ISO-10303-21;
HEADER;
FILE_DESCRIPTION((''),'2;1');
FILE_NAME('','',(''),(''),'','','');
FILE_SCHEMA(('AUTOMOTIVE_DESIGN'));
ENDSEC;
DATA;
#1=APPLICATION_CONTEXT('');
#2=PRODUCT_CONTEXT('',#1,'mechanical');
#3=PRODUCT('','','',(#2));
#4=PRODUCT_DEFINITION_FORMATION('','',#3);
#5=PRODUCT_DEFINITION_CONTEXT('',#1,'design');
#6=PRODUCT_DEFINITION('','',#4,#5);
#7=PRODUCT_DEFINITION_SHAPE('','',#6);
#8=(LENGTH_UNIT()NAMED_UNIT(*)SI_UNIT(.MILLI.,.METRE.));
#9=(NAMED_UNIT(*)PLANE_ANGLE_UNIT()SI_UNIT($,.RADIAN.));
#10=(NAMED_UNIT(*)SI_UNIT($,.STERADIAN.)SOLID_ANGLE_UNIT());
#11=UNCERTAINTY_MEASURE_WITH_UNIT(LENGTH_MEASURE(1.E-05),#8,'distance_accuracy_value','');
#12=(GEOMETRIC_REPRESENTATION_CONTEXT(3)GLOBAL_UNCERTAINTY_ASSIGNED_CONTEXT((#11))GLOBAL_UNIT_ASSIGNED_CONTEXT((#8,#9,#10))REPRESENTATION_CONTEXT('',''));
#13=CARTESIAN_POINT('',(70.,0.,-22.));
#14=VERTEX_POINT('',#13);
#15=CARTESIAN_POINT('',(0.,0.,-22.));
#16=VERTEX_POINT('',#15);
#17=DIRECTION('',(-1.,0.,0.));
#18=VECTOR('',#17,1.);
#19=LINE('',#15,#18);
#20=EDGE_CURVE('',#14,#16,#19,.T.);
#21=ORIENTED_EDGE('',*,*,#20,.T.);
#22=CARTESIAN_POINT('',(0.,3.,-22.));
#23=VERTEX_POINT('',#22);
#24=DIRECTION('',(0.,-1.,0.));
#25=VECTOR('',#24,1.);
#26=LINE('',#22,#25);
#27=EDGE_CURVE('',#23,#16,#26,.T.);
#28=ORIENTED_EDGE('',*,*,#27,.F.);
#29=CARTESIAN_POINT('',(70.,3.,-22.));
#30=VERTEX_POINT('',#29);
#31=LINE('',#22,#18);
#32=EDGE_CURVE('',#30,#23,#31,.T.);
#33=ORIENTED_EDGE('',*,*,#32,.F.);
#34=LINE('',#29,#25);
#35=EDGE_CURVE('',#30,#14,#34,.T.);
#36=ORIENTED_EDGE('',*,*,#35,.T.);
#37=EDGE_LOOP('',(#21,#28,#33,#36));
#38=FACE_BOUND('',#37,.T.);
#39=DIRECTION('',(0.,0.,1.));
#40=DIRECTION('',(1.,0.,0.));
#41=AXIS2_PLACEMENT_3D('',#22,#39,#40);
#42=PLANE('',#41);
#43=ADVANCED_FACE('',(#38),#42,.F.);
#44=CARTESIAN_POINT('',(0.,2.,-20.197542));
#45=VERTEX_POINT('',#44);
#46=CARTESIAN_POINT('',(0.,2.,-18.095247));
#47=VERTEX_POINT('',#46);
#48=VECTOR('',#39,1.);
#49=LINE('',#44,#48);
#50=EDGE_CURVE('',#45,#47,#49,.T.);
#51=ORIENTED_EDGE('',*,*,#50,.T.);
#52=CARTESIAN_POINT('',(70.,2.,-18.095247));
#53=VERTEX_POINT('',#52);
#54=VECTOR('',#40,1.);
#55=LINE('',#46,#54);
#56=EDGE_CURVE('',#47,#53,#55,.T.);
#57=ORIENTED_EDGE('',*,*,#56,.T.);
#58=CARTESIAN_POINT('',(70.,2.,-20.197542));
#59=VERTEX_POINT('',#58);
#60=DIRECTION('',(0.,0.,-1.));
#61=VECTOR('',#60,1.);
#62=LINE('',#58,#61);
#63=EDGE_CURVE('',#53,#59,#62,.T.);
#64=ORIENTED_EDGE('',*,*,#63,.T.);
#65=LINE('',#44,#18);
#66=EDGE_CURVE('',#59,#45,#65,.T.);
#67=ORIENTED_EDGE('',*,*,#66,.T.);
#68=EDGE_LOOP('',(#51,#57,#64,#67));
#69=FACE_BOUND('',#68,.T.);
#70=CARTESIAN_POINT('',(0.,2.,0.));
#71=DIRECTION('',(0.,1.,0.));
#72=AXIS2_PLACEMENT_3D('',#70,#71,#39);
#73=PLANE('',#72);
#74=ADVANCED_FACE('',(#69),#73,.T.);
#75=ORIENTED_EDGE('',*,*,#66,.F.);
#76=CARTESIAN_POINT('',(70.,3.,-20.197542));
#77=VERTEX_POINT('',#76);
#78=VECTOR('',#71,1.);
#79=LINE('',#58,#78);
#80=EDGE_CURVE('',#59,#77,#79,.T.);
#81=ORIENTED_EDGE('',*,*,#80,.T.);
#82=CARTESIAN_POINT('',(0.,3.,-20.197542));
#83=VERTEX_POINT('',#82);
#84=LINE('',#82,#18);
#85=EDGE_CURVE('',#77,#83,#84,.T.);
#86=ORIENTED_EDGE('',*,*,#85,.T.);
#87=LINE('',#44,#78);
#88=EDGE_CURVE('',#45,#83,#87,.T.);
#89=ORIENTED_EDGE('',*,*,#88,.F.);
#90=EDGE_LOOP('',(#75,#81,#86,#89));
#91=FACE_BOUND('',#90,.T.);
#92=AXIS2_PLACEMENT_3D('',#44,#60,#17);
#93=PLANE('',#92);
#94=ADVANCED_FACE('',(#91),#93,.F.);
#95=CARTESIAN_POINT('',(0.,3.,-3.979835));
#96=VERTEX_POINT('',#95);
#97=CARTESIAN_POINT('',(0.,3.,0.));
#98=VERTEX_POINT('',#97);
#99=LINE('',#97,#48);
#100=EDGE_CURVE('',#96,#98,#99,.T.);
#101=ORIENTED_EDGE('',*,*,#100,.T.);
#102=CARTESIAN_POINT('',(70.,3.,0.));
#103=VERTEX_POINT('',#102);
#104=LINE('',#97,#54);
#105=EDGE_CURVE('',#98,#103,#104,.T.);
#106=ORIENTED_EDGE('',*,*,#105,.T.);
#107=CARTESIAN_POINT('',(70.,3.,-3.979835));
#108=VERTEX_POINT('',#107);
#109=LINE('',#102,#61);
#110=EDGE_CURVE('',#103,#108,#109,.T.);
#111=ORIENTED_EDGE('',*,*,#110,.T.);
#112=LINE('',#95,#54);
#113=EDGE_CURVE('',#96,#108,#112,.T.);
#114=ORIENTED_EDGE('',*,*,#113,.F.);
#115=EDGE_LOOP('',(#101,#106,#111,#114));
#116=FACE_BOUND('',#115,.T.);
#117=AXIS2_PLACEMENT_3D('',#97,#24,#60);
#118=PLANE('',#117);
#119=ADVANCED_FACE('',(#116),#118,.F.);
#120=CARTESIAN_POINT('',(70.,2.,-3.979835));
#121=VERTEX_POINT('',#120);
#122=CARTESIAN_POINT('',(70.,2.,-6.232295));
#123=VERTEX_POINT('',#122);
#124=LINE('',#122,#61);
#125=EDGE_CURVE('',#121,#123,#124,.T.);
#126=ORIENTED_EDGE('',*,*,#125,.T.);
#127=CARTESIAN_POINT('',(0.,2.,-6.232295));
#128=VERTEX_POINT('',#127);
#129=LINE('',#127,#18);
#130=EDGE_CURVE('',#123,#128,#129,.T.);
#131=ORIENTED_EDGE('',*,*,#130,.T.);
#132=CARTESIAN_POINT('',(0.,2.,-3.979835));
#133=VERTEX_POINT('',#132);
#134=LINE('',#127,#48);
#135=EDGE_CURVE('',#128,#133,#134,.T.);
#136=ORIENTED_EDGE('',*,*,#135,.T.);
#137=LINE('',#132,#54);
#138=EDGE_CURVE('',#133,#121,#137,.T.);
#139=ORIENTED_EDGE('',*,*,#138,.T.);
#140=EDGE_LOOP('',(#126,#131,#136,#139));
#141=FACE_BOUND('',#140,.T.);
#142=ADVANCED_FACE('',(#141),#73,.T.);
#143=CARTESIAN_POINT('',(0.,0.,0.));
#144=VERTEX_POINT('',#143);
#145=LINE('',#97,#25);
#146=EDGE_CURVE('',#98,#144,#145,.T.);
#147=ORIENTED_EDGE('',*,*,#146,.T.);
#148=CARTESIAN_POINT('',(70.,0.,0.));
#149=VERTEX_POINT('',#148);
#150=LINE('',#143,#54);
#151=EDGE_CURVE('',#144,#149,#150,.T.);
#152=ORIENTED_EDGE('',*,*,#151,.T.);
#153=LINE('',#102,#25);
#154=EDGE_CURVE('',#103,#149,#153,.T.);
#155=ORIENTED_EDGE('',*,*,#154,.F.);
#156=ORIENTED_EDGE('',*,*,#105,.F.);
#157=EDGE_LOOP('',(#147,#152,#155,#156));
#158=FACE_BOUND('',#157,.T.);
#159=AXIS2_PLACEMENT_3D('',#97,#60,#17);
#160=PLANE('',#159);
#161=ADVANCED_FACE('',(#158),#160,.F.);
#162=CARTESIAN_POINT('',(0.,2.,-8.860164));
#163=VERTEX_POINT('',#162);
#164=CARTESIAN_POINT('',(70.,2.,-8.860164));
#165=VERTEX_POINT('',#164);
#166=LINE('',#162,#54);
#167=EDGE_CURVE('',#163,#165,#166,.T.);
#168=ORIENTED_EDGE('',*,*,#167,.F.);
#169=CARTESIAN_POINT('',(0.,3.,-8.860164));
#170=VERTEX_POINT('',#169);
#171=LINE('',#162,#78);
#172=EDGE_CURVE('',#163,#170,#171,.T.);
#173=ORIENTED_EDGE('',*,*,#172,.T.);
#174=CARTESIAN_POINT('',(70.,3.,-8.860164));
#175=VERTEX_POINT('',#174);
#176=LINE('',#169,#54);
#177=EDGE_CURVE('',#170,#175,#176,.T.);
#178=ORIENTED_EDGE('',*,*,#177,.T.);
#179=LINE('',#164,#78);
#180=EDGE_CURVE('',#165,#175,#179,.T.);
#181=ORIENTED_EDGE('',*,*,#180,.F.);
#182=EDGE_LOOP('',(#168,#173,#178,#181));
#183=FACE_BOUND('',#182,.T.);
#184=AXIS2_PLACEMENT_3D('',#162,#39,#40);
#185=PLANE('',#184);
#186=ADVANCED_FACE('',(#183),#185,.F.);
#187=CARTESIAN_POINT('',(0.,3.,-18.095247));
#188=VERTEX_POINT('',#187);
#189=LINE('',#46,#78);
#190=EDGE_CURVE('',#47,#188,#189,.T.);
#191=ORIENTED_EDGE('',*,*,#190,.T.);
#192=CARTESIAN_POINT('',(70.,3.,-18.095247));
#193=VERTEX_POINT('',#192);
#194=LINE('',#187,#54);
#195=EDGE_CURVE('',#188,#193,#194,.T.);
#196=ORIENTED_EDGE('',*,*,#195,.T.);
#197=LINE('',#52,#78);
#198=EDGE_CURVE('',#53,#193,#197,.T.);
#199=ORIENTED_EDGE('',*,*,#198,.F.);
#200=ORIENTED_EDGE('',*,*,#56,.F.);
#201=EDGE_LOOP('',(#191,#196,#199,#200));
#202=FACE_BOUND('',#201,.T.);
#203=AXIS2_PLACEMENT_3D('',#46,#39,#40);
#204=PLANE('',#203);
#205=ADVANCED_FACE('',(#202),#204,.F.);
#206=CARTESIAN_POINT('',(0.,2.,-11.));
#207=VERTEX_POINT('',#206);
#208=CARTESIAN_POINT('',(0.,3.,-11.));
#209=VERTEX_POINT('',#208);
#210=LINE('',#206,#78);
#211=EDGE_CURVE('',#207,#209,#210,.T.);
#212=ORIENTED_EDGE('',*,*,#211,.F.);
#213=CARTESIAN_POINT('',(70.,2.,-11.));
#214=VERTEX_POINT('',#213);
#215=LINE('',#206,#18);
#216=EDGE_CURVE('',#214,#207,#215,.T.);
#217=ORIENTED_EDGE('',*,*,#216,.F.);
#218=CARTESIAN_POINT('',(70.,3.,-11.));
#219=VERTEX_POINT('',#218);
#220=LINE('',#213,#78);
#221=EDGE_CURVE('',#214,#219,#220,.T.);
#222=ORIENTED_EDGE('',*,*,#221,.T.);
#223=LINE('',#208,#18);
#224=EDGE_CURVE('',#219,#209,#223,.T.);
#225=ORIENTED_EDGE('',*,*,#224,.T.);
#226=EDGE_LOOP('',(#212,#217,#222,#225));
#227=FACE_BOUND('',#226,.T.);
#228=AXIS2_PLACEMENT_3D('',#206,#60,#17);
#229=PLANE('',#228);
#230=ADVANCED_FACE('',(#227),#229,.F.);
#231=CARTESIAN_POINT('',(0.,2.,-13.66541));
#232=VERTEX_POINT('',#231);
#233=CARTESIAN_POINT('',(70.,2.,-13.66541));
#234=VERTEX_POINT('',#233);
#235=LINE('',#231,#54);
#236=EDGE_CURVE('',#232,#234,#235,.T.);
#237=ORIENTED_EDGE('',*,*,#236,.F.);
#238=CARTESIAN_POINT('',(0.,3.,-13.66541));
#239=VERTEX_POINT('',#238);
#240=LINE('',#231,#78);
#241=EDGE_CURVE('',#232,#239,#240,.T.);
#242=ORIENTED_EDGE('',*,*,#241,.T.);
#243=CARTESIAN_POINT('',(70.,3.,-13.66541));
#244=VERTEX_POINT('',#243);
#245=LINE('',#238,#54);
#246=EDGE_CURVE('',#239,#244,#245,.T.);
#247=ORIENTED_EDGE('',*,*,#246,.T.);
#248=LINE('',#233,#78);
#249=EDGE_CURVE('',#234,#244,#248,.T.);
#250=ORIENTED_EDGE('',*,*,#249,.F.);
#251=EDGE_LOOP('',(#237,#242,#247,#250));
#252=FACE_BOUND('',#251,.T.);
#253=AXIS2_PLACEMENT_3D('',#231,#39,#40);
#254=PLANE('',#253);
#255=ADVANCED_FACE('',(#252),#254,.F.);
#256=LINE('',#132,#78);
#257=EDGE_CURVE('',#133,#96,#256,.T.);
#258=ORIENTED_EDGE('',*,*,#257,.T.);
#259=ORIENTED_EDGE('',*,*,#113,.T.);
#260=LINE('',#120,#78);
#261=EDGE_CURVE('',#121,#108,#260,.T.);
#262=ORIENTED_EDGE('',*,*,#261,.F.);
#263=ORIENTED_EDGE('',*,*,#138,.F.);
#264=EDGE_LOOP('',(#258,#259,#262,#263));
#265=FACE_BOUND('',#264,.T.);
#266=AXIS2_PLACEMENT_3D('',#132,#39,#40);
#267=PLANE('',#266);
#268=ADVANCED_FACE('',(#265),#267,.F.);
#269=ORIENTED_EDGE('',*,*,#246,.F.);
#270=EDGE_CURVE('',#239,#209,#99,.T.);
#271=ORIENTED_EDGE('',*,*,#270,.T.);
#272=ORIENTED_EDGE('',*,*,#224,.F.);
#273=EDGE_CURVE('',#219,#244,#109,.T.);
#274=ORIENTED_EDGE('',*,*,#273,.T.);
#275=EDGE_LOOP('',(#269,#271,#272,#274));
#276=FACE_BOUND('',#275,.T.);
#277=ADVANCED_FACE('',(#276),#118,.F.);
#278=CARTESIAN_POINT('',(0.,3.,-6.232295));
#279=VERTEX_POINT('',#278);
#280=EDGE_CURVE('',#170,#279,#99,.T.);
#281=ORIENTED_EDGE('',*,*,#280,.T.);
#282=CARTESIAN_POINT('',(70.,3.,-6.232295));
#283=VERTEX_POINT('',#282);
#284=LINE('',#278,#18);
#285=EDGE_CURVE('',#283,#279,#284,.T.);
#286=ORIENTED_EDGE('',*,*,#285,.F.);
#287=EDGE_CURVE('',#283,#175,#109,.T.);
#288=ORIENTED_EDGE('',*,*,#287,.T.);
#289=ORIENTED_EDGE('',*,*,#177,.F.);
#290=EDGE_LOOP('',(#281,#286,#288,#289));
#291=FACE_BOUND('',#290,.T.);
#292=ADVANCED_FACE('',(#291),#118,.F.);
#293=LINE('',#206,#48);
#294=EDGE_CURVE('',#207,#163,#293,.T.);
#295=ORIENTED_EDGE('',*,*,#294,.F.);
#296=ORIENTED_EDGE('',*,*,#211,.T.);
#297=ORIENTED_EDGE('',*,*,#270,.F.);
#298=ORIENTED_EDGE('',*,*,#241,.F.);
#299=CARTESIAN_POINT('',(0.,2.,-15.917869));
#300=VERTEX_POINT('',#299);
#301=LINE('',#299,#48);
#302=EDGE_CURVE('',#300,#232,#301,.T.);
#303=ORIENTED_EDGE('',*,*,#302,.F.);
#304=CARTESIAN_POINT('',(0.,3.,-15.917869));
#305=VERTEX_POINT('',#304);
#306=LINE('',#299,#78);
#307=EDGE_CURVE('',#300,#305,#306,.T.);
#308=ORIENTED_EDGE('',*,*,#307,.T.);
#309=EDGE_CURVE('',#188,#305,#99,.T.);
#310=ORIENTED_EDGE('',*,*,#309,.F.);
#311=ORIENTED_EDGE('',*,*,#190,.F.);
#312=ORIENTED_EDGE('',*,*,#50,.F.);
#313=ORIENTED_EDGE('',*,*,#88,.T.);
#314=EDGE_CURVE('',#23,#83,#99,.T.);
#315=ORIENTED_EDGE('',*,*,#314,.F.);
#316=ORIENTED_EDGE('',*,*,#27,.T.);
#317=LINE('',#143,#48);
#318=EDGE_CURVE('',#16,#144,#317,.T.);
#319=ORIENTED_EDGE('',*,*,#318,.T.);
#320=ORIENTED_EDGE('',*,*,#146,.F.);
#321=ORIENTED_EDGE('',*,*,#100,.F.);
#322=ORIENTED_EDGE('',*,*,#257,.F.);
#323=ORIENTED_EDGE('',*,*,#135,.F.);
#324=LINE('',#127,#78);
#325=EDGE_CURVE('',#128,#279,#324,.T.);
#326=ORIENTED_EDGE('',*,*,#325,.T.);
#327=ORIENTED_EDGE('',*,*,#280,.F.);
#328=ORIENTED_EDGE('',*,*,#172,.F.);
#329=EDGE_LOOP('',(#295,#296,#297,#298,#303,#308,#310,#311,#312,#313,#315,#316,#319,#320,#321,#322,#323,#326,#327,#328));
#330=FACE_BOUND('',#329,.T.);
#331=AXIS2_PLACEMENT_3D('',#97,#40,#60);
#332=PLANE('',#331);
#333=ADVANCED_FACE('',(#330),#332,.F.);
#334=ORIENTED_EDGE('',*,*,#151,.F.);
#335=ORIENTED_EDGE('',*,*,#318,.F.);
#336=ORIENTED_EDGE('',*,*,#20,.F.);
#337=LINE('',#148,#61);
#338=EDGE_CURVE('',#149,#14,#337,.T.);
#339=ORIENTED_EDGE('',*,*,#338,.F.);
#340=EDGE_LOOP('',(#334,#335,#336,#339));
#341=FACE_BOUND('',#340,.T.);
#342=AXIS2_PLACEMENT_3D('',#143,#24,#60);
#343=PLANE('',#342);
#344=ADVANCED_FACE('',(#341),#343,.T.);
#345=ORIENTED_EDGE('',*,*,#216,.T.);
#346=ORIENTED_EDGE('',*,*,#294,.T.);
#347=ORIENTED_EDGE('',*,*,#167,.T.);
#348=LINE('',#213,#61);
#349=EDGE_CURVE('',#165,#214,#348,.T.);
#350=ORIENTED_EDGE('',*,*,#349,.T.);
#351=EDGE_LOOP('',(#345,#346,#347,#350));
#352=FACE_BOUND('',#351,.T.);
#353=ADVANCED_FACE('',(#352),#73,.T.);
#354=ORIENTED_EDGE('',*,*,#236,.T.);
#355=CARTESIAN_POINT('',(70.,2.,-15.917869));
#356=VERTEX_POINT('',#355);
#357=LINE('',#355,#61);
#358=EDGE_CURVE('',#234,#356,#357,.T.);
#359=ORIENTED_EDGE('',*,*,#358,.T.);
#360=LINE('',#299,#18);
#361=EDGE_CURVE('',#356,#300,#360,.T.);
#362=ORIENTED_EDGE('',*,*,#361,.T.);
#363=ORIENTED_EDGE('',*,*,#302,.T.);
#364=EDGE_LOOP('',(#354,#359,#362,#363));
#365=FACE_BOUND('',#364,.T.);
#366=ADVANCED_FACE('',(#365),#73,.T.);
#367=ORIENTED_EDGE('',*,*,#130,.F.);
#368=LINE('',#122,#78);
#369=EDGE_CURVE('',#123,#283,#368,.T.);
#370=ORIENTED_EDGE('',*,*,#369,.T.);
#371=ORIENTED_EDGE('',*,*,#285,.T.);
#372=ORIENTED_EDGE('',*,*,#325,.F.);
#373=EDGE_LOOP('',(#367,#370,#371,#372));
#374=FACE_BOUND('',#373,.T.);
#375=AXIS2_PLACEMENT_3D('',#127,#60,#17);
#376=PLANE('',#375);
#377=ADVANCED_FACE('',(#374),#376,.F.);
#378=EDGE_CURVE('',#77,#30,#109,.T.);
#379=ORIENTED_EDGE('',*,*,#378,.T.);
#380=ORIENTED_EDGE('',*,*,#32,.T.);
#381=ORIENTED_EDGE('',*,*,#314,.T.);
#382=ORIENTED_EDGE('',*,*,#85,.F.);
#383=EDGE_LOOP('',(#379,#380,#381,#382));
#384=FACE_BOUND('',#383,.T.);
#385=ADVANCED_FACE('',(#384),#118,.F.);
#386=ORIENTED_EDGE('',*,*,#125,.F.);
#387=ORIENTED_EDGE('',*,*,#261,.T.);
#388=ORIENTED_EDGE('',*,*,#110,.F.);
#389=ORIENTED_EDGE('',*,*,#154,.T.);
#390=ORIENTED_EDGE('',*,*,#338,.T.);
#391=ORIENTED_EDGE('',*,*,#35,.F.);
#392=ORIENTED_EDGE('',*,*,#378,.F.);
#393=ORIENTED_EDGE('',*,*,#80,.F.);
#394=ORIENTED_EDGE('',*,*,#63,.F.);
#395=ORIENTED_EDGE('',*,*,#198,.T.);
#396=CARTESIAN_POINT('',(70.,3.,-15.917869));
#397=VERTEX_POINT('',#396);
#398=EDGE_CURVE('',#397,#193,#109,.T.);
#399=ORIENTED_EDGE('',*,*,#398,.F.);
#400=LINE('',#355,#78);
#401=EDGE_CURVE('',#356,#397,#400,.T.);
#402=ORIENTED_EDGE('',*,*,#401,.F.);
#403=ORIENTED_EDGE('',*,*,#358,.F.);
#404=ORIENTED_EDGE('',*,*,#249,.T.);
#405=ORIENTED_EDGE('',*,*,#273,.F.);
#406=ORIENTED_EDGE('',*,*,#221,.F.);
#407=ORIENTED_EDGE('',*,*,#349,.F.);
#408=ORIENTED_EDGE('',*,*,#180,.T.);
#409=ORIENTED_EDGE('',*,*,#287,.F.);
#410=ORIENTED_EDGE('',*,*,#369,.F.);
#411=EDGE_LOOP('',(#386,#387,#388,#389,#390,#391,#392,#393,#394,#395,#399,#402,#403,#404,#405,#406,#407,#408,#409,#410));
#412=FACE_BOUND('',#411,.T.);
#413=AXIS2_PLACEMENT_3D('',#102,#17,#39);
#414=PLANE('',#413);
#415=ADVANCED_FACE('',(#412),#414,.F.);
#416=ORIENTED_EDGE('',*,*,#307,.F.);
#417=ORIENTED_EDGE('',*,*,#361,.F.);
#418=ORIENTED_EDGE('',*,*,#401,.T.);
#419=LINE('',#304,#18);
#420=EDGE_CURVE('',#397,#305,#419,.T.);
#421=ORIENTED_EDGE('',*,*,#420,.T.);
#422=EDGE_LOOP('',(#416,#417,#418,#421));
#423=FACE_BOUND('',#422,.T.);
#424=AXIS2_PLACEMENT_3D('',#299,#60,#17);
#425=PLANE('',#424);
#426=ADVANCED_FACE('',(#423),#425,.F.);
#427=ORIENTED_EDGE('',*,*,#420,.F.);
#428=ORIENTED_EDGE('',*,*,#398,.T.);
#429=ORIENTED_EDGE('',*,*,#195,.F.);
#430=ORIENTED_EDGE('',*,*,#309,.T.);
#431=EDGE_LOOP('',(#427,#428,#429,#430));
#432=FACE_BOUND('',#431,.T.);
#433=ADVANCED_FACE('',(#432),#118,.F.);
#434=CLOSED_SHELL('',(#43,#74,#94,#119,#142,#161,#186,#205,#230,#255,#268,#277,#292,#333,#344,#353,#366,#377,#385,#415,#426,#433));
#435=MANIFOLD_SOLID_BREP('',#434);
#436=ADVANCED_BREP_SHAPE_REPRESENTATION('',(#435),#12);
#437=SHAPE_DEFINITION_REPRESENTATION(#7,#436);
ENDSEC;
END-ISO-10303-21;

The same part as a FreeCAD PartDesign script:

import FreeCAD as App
import Part
import Sketcher
from FreeCAD import Vector


def add_polygon(sketch, points):
    """Adds a closed chain of lines whose ends are joined by coincident constraints."""
    first, n = sketch.GeometryCount, len(points)
    for a, b in zip(points, points[1:] + points[:1]):
        sketch.addGeometry(Part.LineSegment(App.Vector(*a, 0), App.Vector(*b, 0)), False)
    for i in range(n):
        sketch.addConstraint(Sketcher.Constraint("Coincident", first + i, 2, first + (i + 1) % n, 1))

doc = App.newDocument("Part")
params = doc.addObject("Spreadsheet::Sheet", "Params")
for row, (alias, value) in enumerate([
    ("sketch1_width", "70 mm"),
    ("sketch1_height", "22 mm"),
    ("pad1_length", "3 mm"),
    ("sketch2_width", "70 mm"),
    ("pocket1_length", "1 mm"),
], start=1):
    params.set(f"A{row}", alias)
    params.set(f"B{row}", "=" + value)
    params.setAlias(f"B{row}", alias)

body = doc.addObject("PartDesign::Body", "Body")

sketch1 = body.newObject("Sketcher::SketchObject", "Sketch")
sketch1.AttachmentSupport = (doc.getObject("XZ_Plane"), [""])
sketch1.MapMode = "FlatFace"
add_polygon(sketch1, [(0, -22), (0, 0), (70, 0), (70, -22)])
sketch1.addConstraint(Sketcher.Constraint("Vertical", 0))
sketch1.addConstraint(Sketcher.Constraint("Horizontal", 1))
sketch1.addConstraint(Sketcher.Constraint("Vertical", 2))
sketch1.addConstraint(Sketcher.Constraint("Horizontal", 3))
sketch1.addConstraint(Sketcher.Constraint("Coincident", 0, 2, -1, 1))
sketch1.addConstraint(Sketcher.Constraint("DistanceX", 1, 1, 1, 2, 70.0))
sketch1.addConstraint(Sketcher.Constraint("DistanceY", 0, 1, 0, 2, 22.0))
sketch1.setExpression("Constraints[9]", "Params.sketch1_width")
sketch1.setExpression("Constraints[10]", "Params.sketch1_height")
pad1 = body.newObject("PartDesign::Pad", "Pad")
pad1.Profile = sketch1
pad1.setExpression("Length", "Params.pad1_length")
pad1.Reversed = True

sketch2 = body.newObject("Sketcher::SketchObject", "Sketch001")
sketch2.AttachmentSupport = (doc.getObject("XZ_Plane"), [""])
sketch2.MapMode = "FlatFace"
sketch2.AttachmentOffset = App.Placement(Vector(0, 0, -3), App.Rotation())
add_polygon(sketch2, [(0, -20.2), (0, -18.1), (70, -18.1), (70, -20.2)])
add_polygon(sketch2, [(0, -15.9), (0, -13.7), (70, -13.7), (70, -15.9)])
add_polygon(sketch2, [(0, -11), (0, -8.9), (70, -8.9), (70, -11)])
add_polygon(sketch2, [(0, -6.2), (0, -4), (70, -4), (70, -6.2)])
sketch2.addConstraint(Sketcher.Constraint("Vertical", 0))
sketch2.addConstraint(Sketcher.Constraint("Horizontal", 1))
sketch2.addConstraint(Sketcher.Constraint("Vertical", 2))
sketch2.addConstraint(Sketcher.Constraint("Horizontal", 3))
sketch2.addConstraint(Sketcher.Constraint("Vertical", 4))
sketch2.addConstraint(Sketcher.Constraint("Horizontal", 5))
sketch2.addConstraint(Sketcher.Constraint("Vertical", 6))
sketch2.addConstraint(Sketcher.Constraint("Horizontal", 7))
sketch2.addConstraint(Sketcher.Constraint("Vertical", 8))
sketch2.addConstraint(Sketcher.Constraint("Horizontal", 9))
sketch2.addConstraint(Sketcher.Constraint("Vertical", 10))
sketch2.addConstraint(Sketcher.Constraint("Horizontal", 11))
sketch2.addConstraint(Sketcher.Constraint("Vertical", 12))
sketch2.addConstraint(Sketcher.Constraint("Horizontal", 13))
sketch2.addConstraint(Sketcher.Constraint("Vertical", 14))
sketch2.addConstraint(Sketcher.Constraint("Horizontal", 15))
sketch2.addConstraint(Sketcher.Constraint("PointOnObject", 0, 2, -2))
sketch2.addConstraint(Sketcher.Constraint("PointOnObject", 4, 2, -2))
sketch2.addConstraint(Sketcher.Constraint("PointOnObject", 8, 2, -2))
sketch2.addConstraint(Sketcher.Constraint("PointOnObject", 12, 2, -2))
sketch2.addConstraint(Sketcher.Constraint("Vertical", 2, 2, 5, 2))
sketch2.addConstraint(Sketcher.Constraint("Vertical", 6, 2, 9, 2))
sketch2.addConstraint(Sketcher.Constraint("Vertical", 10, 2, 13, 2))
sketch2.addConstraint(Sketcher.Constraint("Equal", 6, 12))
sketch2.addConstraint(Sketcher.Constraint("DistanceX", 1, 1, 1, 2, 70.0))
sketch2.addConstraint(Sketcher.Constraint("DistanceY", 10, 2, -1, 1, 11.0))
sketch2.addConstraint(Sketcher.Constraint("DistanceY", 4, 1, 4, 2, 2.252459))
sketch2.addConstraint(Sketcher.Constraint("DistanceY", 0, 1, 0, 2, 2.102295))
sketch2.addConstraint(Sketcher.Constraint("DistanceY", 8, 1, 8, 2, 2.139836))
sketch2.addConstraint(Sketcher.Constraint("DistanceY", 4, 2, -1, 1, 13.66541))
sketch2.addConstraint(Sketcher.Constraint("DistanceY", 3, 2, 4, 2, 6.532132))
sketch2.addConstraint(Sketcher.Constraint("DistanceY", 8, 2, 12, 2, 4.880328))
sketch2.setExpression("Constraints[40]", "Params.sketch2_width")
pocket1 = body.newObject("PartDesign::Pocket", "Pocket")
pocket1.Profile = sketch2
pocket1.setExpression("Length", "Params.pocket1_length")
pocket1.Reversed = True

doc.recompute()
